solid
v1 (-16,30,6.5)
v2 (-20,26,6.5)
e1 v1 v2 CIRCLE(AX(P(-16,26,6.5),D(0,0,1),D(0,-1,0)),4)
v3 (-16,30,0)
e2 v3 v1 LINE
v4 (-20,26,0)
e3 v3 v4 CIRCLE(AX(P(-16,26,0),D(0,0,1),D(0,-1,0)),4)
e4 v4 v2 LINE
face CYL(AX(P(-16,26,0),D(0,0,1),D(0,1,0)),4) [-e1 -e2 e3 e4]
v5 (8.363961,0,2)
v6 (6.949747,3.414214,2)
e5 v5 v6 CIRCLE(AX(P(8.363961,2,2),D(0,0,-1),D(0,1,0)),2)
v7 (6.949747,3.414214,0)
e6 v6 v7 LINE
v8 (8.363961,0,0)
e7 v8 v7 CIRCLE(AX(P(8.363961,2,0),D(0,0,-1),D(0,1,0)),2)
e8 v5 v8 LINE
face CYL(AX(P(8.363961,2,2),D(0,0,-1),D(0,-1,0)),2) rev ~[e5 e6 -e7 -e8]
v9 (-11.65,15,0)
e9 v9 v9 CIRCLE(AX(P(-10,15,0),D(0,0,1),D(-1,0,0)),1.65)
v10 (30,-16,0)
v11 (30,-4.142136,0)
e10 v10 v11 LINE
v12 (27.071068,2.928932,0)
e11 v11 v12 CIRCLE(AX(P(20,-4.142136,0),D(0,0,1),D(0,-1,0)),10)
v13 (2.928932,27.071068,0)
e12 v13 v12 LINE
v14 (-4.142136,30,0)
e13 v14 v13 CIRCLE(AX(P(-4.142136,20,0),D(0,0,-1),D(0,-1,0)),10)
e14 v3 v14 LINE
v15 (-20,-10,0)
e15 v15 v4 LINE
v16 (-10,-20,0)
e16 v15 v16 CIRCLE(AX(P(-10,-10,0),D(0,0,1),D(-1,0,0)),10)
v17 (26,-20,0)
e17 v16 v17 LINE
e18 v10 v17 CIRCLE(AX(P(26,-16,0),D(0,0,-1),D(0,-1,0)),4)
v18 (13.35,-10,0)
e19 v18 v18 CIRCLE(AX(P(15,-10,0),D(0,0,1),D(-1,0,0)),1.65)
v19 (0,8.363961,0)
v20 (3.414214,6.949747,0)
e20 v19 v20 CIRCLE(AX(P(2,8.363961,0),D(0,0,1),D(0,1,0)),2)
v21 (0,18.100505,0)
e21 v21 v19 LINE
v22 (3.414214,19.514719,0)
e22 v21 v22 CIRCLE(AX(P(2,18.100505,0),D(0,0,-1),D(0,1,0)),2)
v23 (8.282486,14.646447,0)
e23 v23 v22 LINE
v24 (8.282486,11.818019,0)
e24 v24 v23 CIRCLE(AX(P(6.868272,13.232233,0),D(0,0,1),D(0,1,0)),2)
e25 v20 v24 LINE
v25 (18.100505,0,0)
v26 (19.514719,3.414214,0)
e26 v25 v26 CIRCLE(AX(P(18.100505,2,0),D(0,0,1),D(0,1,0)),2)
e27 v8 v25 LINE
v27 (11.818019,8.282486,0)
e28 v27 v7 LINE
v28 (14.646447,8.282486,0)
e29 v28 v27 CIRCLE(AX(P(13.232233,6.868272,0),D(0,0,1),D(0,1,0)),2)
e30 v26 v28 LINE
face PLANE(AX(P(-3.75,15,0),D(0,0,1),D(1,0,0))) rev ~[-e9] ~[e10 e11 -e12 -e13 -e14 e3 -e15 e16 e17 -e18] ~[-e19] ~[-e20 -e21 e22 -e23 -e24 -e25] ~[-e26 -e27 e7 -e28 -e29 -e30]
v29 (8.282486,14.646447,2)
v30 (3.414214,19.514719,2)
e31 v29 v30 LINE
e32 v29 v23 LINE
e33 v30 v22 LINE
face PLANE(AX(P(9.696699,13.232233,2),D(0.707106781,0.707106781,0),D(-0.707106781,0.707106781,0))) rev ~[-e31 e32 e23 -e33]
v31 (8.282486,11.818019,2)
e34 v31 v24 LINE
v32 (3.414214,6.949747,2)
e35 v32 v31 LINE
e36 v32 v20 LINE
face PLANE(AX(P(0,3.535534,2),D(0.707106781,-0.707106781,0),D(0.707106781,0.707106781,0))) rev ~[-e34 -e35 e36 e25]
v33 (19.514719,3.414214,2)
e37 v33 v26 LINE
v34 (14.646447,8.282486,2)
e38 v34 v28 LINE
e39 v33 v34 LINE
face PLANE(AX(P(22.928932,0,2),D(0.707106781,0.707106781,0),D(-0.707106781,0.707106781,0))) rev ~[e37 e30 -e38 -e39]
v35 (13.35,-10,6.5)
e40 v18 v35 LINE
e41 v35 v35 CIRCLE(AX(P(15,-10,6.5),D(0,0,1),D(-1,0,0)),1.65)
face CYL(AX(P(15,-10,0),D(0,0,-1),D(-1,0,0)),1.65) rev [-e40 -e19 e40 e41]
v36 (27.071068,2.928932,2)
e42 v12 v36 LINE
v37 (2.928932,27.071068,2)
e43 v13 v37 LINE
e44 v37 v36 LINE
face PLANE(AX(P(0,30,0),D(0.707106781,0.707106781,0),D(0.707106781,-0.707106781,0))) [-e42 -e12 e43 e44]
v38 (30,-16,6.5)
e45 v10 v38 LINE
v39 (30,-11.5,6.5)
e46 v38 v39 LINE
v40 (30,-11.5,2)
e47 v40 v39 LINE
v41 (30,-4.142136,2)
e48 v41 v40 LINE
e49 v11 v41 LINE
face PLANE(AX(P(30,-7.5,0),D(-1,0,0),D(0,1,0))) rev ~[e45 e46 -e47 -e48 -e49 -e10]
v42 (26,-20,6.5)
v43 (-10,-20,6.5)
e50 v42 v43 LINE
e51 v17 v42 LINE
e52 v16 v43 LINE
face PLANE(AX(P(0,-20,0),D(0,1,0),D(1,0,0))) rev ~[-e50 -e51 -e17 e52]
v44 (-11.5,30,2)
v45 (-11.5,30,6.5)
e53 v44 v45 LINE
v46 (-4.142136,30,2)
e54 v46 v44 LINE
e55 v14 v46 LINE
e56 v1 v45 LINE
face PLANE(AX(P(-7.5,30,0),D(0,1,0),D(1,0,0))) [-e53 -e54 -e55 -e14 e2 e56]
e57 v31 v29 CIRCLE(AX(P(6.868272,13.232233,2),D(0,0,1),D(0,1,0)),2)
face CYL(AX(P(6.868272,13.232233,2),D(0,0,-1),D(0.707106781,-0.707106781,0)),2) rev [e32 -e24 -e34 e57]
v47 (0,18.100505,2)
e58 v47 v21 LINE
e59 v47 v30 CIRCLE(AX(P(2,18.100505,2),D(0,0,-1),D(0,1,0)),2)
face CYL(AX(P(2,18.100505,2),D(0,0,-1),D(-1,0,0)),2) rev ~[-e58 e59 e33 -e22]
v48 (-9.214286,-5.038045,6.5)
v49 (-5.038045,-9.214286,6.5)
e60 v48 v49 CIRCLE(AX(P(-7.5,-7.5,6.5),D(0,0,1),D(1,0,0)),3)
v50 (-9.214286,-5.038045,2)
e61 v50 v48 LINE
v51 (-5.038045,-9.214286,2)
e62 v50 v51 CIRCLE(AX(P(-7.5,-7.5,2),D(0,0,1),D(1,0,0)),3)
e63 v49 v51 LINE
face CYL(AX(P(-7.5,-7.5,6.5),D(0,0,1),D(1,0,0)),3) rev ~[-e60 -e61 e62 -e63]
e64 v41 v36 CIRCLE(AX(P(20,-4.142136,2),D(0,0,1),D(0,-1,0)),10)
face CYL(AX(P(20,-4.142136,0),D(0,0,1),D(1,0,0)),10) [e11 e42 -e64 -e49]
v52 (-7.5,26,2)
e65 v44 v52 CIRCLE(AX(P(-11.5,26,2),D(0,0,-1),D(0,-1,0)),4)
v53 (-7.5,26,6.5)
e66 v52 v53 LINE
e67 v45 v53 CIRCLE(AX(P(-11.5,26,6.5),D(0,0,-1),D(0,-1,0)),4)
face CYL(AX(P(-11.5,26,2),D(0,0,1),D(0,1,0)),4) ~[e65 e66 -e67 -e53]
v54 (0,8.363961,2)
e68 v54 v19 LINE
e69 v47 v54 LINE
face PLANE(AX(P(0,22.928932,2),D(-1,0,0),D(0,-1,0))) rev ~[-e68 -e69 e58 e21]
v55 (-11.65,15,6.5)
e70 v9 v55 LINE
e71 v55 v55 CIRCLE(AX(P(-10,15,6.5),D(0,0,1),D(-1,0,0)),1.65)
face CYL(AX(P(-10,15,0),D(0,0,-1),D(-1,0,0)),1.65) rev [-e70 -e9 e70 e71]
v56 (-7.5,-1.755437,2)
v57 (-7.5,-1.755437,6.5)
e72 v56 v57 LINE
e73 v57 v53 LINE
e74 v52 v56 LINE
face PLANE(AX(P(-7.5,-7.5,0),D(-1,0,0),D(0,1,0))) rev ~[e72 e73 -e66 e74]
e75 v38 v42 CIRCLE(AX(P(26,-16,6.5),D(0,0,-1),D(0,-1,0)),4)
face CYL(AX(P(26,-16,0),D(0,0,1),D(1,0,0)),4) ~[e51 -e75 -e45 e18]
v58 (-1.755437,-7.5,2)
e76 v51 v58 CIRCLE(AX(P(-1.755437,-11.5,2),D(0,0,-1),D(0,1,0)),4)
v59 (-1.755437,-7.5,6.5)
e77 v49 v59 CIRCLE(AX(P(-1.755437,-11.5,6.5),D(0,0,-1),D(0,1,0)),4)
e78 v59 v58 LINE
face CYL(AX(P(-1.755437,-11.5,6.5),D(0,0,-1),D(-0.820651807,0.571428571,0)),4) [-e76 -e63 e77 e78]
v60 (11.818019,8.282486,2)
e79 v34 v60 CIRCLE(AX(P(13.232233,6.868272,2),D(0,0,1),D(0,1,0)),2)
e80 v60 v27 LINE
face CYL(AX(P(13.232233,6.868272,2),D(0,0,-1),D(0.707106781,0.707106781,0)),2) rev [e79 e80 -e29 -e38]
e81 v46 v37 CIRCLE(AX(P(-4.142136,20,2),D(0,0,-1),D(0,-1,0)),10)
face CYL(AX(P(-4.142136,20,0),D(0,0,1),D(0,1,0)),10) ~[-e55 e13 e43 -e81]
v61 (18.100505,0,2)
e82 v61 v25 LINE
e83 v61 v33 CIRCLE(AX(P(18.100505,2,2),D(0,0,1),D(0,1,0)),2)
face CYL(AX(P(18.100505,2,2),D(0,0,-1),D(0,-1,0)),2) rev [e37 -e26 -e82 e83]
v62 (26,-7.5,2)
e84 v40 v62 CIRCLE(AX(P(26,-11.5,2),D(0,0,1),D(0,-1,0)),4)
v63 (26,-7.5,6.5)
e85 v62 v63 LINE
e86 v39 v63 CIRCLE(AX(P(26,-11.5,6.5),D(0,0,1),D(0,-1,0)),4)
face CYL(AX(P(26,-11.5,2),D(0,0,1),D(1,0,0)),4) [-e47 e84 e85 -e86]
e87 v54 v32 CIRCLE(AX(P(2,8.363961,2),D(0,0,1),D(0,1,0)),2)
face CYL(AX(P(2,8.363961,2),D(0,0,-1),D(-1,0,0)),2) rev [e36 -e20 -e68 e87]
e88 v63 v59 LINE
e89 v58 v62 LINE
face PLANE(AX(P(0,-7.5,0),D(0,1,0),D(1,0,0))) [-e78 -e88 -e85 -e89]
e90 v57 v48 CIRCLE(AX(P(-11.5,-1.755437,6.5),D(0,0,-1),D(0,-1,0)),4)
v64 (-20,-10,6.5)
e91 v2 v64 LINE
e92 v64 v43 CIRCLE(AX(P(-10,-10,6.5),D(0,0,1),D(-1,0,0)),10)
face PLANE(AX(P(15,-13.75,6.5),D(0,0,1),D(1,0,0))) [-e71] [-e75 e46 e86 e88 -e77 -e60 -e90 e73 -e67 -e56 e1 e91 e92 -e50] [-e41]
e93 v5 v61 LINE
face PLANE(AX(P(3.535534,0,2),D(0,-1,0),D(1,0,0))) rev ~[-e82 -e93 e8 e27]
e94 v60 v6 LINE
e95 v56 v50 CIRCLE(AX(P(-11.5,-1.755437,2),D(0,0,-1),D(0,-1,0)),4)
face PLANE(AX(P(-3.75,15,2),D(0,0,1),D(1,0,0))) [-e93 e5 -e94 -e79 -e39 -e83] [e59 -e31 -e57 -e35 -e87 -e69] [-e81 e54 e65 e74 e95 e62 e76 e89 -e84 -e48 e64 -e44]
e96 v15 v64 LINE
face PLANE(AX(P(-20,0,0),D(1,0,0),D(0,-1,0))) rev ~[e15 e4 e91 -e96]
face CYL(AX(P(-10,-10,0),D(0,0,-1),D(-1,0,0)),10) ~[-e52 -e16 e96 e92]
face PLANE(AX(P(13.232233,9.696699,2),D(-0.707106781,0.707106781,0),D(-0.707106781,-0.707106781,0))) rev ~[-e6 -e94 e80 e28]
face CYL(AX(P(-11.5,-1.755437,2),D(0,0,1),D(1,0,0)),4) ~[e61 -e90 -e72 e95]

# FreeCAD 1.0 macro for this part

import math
import FreeCAD as App
import Part
import Sketcher

V = App.Vector
Q = App.Units.Quantity


def edges_at(feature, points):
    """Names of the edges that pass closest to the given points."""
    edges = feature.Shape.Edges
    near = lambda p: min(range(len(edges)), key=lambda i: edges[i].distToShape(Part.Vertex(*p))[0])
    return sorted({f"Edge{near(p) + 1}" for p in points})

doc = App.newDocument("Part")
params = doc.addObject("Spreadsheet::Sheet", "Params")
for row, (alias, value) in enumerate([
    ("sketch1_radius", "10 mm"),
    ("sketch1_diameter", "3.3 mm"),
    ("sketch1_width", "40 mm"),
    ("sketch1_width2", "37.5 mm"),
    ("pad1_length", "6.5 mm"),
    ("sketch2_width", "37.5 mm"),
    ("sketch2_width2", "7.5 mm"),
    ("pad2_length", "2 mm"),
    ("fillet_radius", "10 mm"),
    ("fillet2_radius", "4 mm"),
    ("sketch3_diameter", "6 mm"),
    ("pocket1_length", "4.5 mm"),
    ("fillet3_radius", "4 mm"),
    ("pocket2_length", "2 mm"),
    ("fillet4_radius", "2 mm"),
], start=1):
    params.set(f"A{row}", alias)
    params.set(f"B{row}", "=" + value)
    params.setAlias(f"B{row}", alias)

body = doc.addObject("PartDesign::Body", "Body")

# Sketch on XY plane
sketch1 = body.newObject("Sketcher::SketchObject", "Sketch")
sketch1.AttachmentSupport = (doc.getObject("XY_Plane"), [""])
sketch1.MapMode = "FlatFace"
sketch1.addGeometry(Part.LineSegment(V(-20, 30, 0), V(-20, -10, 0)), False)
sketch1.addGeometry(Part.ArcOfCircle(Part.Circle(V(-10, -10, 0), V(0, 0, 1), 10), math.radians(180), math.radians(270)), False)
sketch1.addGeometry(Part.LineSegment(V(-10, -20, 0), V(30, -20, 0)), False)
sketch1.addGeometry(Part.LineSegment(V(30, -20, 0), V(30, -7.5, 0)), False)
sketch1.addGeometry(Part.LineSegment(V(30, -7.5, 0), V(-7.5, -7.5, 0)), False)
sketch1.addGeometry(Part.LineSegment(V(-7.5, -7.5, 0), V(-7.5, 30, 0)), False)
sketch1.addGeometry(Part.LineSegment(V(-7.5, 30, 0), V(-20, 30, 0)), False)
sketch1.addGeometry(Part.Circle(V(-10, 15, 0), V(0, 0, 1), 1.6), False)
sketch1.addGeometry(Part.Circle(V(15, -10, 0), V(0, 0, 1), 1.6), False)
sketch1.addConstraint(Sketcher.Constraint("Tangent", 0, 2, 1, 1))
sketch1.addConstraint(Sketcher.Constraint("Tangent", 1, 2, 2, 1))
sketch1.addConstraint(Sketcher.Constraint("Coincident", 2, 2, 3, 1))
sketch1.addConstraint(Sketcher.Constraint("Coincident", 3, 2, 4, 1))
sketch1.addConstraint(Sketcher.Constraint("Coincident", 4, 2, 5, 1))
sketch1.addConstraint(Sketcher.Constraint("Coincident", 5, 2, 6, 1))
sketch1.addConstraint(Sketcher.Constraint("Coincident", 6, 2, 0, 1))
sketch1.addConstraint(Sketcher.Constraint("Vertical", 0))
sketch1.addConstraint(Sketcher.Constraint("Horizontal", 2))
sketch1.addConstraint(Sketcher.Constraint("Vertical", 3))
sketch1.addConstraint(Sketcher.Constraint("Horizontal", 4))
sketch1.addConstraint(Sketcher.Constraint("Vertical", 5))
sketch1.addConstraint(Sketcher.Constraint("Horizontal", 6))
sketch1.addConstraint(Sketcher.Constraint("Equal", 7, 8))
sketch1.addConstraint(Sketcher.Constraint("Horizontal", 1, 3, 8, 3))
sketch1.addConstraint(Sketcher.Constraint("Vertical", 1, 3, 7, 3))
sketch1.addConstraint(Sketcher.Constraint("Equal", 2, 0))
sketch1.addConstraint(Sketcher.Constraint("Equal", 6, 3))
sketch1.addConstraint(Sketcher.Constraint("Radius", 1, Q("10 mm")))
sketch1.addConstraint(Sketcher.Constraint("Diameter", 7, Q("3.3 mm")))
sketch1.addConstraint(Sketcher.Constraint("DistanceX", 2, 1, 2, 2, Q("40 mm")))
sketch1.addConstraint(Sketcher.Constraint("DistanceX", 4, 2, 4, 1, Q("37.5 mm")))
sketch1.addConstraint(Sketcher.Constraint("DistanceX", 1, 3, -1, 1, Q("10 mm")))
sketch1.addConstraint(Sketcher.Constraint("DistanceY", 1, 3, -1, 1, Q("10 mm")))
sketch1.addConstraint(Sketcher.Constraint("DistanceY", -1, 1, 7, 3, Q("15 mm")))
sketch1.addConstraint(Sketcher.Constraint("DistanceX", -1, 1, 8, 3, Q("15 mm")))
sketch1.setExpression("Constraints[18]", "Params.sketch1_radius")
sketch1.setExpression("Constraints[19]", "Params.sketch1_diameter")
sketch1.setExpression("Constraints[20]", "Params.sketch1_width")
sketch1.setExpression("Constraints[21]", "Params.sketch1_width2")
pad1 = body.newObject("PartDesign::Pad", "Pad")
pad1.Profile = sketch1
pad1.setExpression("Length", "Params.pad1_length")

# Sketch on XY plane
sketch2 = body.newObject("Sketcher::SketchObject", "Sketch001")
sketch2.AttachmentSupport = (doc.getObject("XY_Plane"), [""])
sketch2.MapMode = "FlatFace"
sketch2.addGeometry(Part.LineSegment(V(-8, 30, 0), V(-8, -8, 0)), False)
sketch2.addGeometry(Part.LineSegment(V(-8, -8, 0), V(30, -8, 0)), False)
sketch2.addGeometry(Part.LineSegment(V(30, -8, 0), V(30, 0, 0)), False)
sketch2.addGeometry(Part.LineSegment(V(30, 0, 0), V(0, 30, 0)), False)
sketch2.addGeometry(Part.LineSegment(V(0, 30, 0), V(-8, 30, 0)), False)
sketch2.addConstraint(Sketcher.Constraint("Coincident", 0, 2, 1, 1))
sketch2.addConstraint(Sketcher.Constraint("Coincident", 1, 2, 2, 1))
sketch2.addConstraint(Sketcher.Constraint("Coincident", 2, 2, 3, 1))
sketch2.addConstraint(Sketcher.Constraint("Coincident", 3, 2, 4, 1))
sketch2.addConstraint(Sketcher.Constraint("Coincident", 4, 2, 0, 1))
sketch2.addConstraint(Sketcher.Constraint("Vertical", 0))
sketch2.addConstraint(Sketcher.Constraint("Horizontal", 1))
sketch2.addConstraint(Sketcher.Constraint("Vertical", 2))
sketch2.addConstraint(Sketcher.Constraint("Horizontal", 4))
sketch2.addConstraint(Sketcher.Constraint("PointOnObject", 2, 2, -1))
sketch2.addConstraint(Sketcher.Constraint("PointOnObject", 3, 2, -2))
sketch2.addConstraint(Sketcher.Constraint("Equal", 1, 0))
sketch2.addConstraint(Sketcher.Constraint("Equal", 4, 2))
sketch2.addConstraint(Sketcher.Constraint("DistanceX", 1, 1, 1, 2, Q("37.5 mm")))
sketch2.addConstraint(Sketcher.Constraint("DistanceX", 4, 2, 4, 1, Q("7.5 mm")))
sketch2.setExpression("Constraints[13]", "Params.sketch2_width")
sketch2.setExpression("Constraints[14]", "Params.sketch2_width2")
pad2 = body.newObject("PartDesign::Pad", "Pad001")
pad2.Profile = sketch2
pad2.setExpression("Length", "Params.pad2_length")
doc.recompute()

fillet = body.newObject("PartDesign::Fillet", "Fillet")
fillet.Base = (pad2, edges_at(pad2, [(30, 0, 1), (0, 30, 1)]))
fillet.setExpression("Radius", "Params.fillet_radius")
doc.recompute()

fillet2 = body.newObject("PartDesign::Fillet", "Fillet001")
fillet2.Base = (fillet, edges_at(fillet, [
    (-20, 30, 3.25),
    (-7.5, 30, 4.25),
    (30, -7.5, 4.25),
    (30, -20, 3.25),
]))
fillet2.setExpression("Radius", "Params.fillet2_radius")

# Sketch on XY plane
sketch3 = body.newObject("Sketcher::SketchObject", "Sketch002")
sketch3.AttachmentSupport = (doc.getObject("XY_Plane"), [""])
sketch3.MapMode = "FlatFace"
sketch3.AttachmentOffset = App.Placement(V(0, 0, 6.5), App.Rotation())
sketch3.addGeometry(Part.Circle(V(-7.5, -7.5, 0), V(0, 0, 1), 3), False)
sketch3.addConstraint(Sketcher.Constraint("Diameter", 0, Q("6 mm")))
sketch3.addConstraint(Sketcher.Constraint("DistanceX", 0, 3, -1, 1, Q("7.5 mm")))
sketch3.addConstraint(Sketcher.Constraint("DistanceY", 0, 3, -1, 1, Q("7.5 mm")))
sketch3.setExpression("Constraints[0]", "Params.sketch3_diameter")
pocket1 = body.newObject("PartDesign::Pocket", "Pocket")
pocket1.Profile = sketch3
pocket1.setExpression("Length", "Params.pocket1_length")
doc.recompute()

fillet3 = body.newObject("PartDesign::Fillet", "Fillet002")
fillet3.Base = (pocket1, edges_at(pocket1, [(-4.5, -7.5, 4.25), (-7.5, -4.5, 4.25)]))
fillet3.setExpression("Radius", "Params.fillet3_radius")

# Sketch on XY plane
sketch4 = body.newObject("Sketcher::SketchObject", "Sketch003")
sketch4.AttachmentSupport = (doc.getObject("XY_Plane"), [""])
sketch4.MapMode = "FlatFace"
sketch4.AttachmentOffset = App.Placement(V(0, 0, 2), App.Rotation())
sketch4.addGeometry(Part.LineSegment(V(4, 0, 0), V(23, 0, 0)), False)
sketch4.addGeometry(Part.LineSegment(V(23, 0, 0), V(13, 10, 0)), False)
sketch4.addGeometry(Part.LineSegment(V(13, 10, 0), V(4, 0, 0)), False)
sketch4.addGeometry(Part.LineSegment(V(0, 23, 0), V(0, 4, 0)), False)
sketch4.addGeometry(Part.LineSegment(V(0, 4, 0), V(10, 13, 0)), False)
sketch4.addGeometry(Part.LineSegment(V(10, 13, 0), V(0, 23, 0)), False)
sketch4.addConstraint(Sketcher.Constraint("Coincident", 0, 2, 1, 1))
sketch4.addConstraint(Sketcher.Constraint("Coincident", 1, 2, 2, 1))
sketch4.addConstraint(Sketcher.Constraint("Coincident", 2, 2, 0, 1))
sketch4.addConstraint(Sketcher.Constraint("Coincident", 3, 2, 4, 1))
sketch4.addConstraint(Sketcher.Constraint("Coincident", 4, 2, 5, 1))
sketch4.addConstraint(Sketcher.Constraint("Coincident", 5, 2, 3, 1))
sketch4.addConstraint(Sketcher.Constraint("Horizontal", 0))
sketch4.addConstraint(Sketcher.Constraint("Vertical", 3))
sketch4.addConstraint(Sketcher.Constraint("PointOnObject", 0, 2, -1))
sketch4.addConstraint(Sketcher.Constraint("PointOnObject", 3, 2, -2))
sketch4.addConstraint(Sketcher.Constraint("Perpendicular", 1, 2))
sketch4.addConstraint(Sketcher.Constraint("Parallel", 2, 4))
sketch4.addConstraint(Sketcher.Constraint("Perpendicular", 4, 5))
sketch4.addConstraint(Sketcher.Constraint("Equal", 0, 3))
sketch4.addConstraint(Sketcher.Constraint("Equal", 1, 2))
sketch4.addConstraint(Sketcher.Constraint("DistanceX", 0, 1, 0, 2, Q("19.393398 mm")))
sketch4.addConstraint(Sketcher.Constraint("DistanceX", -1, 1, 0, 2, Q("22.928932 mm")))
sketch4.addConstraint(Sketcher.Constraint("DistanceY", -1, 1, 3, 2, Q("3.535534 mm")))
pocket2 = body.newObject("PartDesign::Pocket", "Pocket001")
pocket2.Profile = sketch4
pocket2.setExpression("Length", "Params.pocket2_length")
doc.recompute()

fillet4 = body.newObject("PartDesign::Fillet", "Fillet003")
fillet4.Base = (pocket2, edges_at(pocket2, [
    (0, 22.929, 1),
    (9.697, 13.232, 1),
    (0, 3.536, 1),
    (13.232, 9.697, 1),
    (22.929, 0, 1),
    (3.536, 0, 1),
]))
fillet4.setExpression("Radius", "Params.fillet4_radius")

doc.recompute()
